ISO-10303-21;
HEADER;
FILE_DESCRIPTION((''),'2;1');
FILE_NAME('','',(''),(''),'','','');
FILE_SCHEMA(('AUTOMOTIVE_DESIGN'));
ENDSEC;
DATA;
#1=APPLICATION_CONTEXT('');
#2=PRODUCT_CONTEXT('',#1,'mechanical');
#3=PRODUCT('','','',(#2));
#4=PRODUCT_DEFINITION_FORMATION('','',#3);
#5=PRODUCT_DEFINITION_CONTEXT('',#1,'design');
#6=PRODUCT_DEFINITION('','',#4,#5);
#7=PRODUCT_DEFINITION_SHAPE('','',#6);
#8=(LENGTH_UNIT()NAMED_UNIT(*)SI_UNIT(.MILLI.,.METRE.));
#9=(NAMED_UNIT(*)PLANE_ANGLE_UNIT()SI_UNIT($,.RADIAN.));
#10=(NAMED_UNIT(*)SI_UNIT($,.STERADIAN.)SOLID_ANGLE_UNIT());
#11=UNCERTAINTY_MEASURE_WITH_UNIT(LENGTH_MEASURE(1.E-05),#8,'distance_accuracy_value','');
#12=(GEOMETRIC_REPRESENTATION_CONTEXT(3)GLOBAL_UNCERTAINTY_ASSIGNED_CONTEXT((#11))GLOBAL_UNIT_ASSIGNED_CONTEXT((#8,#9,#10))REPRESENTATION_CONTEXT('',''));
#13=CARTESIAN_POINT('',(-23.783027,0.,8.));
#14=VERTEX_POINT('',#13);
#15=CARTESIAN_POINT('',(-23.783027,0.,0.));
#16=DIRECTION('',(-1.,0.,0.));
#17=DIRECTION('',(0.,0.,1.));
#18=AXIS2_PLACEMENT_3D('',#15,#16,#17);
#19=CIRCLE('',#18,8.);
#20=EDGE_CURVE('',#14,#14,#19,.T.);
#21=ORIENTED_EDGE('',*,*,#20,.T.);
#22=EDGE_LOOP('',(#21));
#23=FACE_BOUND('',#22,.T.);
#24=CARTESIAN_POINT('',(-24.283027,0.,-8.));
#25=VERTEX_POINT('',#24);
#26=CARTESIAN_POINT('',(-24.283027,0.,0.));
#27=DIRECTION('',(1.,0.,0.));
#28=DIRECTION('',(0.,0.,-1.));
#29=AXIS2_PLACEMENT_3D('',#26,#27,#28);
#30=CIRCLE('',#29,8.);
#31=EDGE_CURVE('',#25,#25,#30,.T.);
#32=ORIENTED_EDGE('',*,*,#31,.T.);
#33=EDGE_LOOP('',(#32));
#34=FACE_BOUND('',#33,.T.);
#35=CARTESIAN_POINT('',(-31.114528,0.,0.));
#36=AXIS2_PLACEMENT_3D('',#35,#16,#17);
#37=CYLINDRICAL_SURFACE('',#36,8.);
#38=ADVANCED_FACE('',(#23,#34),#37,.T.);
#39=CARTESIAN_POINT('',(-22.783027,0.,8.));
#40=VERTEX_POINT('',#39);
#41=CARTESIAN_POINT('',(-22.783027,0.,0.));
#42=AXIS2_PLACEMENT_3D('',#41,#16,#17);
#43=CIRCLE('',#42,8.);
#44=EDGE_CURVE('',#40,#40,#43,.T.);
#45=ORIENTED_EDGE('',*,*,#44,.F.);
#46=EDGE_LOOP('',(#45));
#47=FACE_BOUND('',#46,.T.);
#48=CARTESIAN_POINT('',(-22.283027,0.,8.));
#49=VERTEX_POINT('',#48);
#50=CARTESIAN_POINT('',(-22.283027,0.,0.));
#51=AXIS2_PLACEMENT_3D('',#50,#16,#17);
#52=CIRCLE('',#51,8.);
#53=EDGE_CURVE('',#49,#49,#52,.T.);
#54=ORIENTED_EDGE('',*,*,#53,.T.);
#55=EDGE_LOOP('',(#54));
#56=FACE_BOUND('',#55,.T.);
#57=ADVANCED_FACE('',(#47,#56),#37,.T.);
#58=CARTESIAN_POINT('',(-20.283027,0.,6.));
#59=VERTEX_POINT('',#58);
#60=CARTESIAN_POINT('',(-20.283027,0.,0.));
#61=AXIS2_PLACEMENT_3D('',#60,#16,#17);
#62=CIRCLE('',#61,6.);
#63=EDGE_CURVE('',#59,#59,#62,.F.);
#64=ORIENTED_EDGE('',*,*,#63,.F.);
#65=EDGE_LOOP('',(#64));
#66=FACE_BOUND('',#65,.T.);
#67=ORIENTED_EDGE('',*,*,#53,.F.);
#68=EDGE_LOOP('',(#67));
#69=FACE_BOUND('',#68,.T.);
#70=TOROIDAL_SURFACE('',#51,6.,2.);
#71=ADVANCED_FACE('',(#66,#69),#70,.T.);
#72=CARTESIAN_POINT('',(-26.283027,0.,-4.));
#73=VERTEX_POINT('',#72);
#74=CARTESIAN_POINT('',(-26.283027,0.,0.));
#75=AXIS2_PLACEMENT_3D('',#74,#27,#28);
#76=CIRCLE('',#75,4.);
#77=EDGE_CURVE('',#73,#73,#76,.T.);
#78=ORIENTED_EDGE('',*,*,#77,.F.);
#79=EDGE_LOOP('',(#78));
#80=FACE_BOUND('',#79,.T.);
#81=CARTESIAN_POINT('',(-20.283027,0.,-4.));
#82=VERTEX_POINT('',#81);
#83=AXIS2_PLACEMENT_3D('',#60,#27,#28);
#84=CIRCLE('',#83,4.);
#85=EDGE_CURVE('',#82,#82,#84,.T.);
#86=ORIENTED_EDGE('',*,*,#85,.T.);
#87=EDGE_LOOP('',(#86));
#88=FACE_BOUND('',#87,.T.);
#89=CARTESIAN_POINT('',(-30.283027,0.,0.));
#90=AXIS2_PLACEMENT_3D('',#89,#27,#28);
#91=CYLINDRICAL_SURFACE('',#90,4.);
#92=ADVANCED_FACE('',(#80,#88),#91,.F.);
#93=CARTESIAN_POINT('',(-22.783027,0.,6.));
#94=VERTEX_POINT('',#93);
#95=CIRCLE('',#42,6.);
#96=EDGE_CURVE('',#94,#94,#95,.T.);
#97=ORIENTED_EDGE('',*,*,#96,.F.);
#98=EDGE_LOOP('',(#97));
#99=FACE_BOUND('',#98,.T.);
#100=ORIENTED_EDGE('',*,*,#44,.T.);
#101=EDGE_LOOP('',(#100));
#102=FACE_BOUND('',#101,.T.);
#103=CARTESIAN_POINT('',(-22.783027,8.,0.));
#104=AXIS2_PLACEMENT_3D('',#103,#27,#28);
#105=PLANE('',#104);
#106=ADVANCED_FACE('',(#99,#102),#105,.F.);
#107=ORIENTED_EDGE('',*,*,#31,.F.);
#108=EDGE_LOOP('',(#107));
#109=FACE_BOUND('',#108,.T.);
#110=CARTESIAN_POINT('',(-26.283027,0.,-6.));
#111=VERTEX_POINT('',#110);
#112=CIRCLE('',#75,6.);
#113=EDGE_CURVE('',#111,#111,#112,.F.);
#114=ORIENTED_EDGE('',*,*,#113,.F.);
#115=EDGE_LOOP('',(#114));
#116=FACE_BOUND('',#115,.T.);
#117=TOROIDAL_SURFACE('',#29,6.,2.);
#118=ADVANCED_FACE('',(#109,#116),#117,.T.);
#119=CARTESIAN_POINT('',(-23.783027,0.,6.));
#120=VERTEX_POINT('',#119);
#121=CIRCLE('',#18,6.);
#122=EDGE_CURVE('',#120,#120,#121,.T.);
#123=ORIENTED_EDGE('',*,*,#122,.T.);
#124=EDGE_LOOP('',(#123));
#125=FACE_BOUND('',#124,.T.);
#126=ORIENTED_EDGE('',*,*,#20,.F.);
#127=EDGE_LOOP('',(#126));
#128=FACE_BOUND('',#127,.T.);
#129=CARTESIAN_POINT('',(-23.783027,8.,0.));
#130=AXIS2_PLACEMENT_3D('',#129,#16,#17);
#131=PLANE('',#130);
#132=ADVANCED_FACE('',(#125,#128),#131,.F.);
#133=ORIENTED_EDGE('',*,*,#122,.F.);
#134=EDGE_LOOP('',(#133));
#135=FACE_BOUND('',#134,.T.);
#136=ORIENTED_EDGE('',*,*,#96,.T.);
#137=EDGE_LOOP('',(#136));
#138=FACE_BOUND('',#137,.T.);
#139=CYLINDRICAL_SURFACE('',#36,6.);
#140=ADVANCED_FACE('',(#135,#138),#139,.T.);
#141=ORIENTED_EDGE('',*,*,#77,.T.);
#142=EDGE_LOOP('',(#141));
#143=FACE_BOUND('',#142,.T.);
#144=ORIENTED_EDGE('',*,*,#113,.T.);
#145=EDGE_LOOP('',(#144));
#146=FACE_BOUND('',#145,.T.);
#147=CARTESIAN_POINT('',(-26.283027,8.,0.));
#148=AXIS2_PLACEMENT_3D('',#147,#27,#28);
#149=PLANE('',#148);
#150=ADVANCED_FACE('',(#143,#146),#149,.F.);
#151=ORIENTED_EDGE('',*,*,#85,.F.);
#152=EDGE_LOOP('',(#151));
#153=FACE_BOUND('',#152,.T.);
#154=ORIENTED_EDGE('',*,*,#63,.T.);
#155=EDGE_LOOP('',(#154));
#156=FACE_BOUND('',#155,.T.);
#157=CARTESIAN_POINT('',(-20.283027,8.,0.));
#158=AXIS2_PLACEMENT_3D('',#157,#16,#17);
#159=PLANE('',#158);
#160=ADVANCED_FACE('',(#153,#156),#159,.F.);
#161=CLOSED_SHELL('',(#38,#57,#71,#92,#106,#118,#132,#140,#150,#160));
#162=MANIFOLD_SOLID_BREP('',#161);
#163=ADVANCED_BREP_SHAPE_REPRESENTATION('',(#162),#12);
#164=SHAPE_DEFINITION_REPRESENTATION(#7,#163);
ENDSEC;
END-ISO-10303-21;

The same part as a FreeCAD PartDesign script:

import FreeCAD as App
import Part
import Sketcher
from FreeCAD import Vector
Q = App.Units.Quantity


def edges_at(feature, points):
    """Names of the edges that pass closest to the given points."""
    edges = feature.Shape.Edges
    near = lambda p: min(range(len(edges)), key=lambda i: edges[i].distToShape(Part.Vertex(*p))[0])
    return sorted({f"Edge{near(p) + 1}" for p in points})


def add_polygon(sketch, points):
    """Adds a closed chain of lines whose ends are joined by coincident constraints."""
    first, n = sketch.GeometryCount, len(points)
    for a, b in zip(points, points[1:] + points[:1]):
        sketch.addGeometry(Part.LineSegment(App.Vector(*a, 0), App.Vector(*b, 0)), False)
    for i in range(n):
        sketch.addConstraint(Sketcher.Constraint("Coincident", first + i, 2, first + (i + 1) % n, 1))

doc = App.newDocument("Part")
params = doc.addObject("Spreadsheet::Sheet", "Params")
for row, (alias, value) in enumerate([
    ("sketch1_width", "6 mm"),
    ("sketch1_width2", "1 mm"),
    ("sketch1_height", "8 mm"),
    ("sketch1_height2", "2 mm"),
    ("revolution_angle", "360 deg"),
    ("sketch2_diameter", "8 mm"),
    ("pocket1_length", "10 mm"),
    ("fillet_radius", "2 mm"),
], start=1):
    params.set(f"A{row}", alias)
    params.set(f"B{row}", "=" + value)
    params.setAlias(f"B{row}", alias)

body = doc.addObject("PartDesign::Body", "Body")

# Sketch on XY plane
sketch1 = body.newObject("Sketcher::SketchObject", "Sketch")
sketch1.AttachmentSupport = (doc.getObject("XY_Plane"), [""])
sketch1.MapMode = "FlatFace"
add_polygon(sketch1, [(-26.3, 8), (-26.3, 0), (-20.3, 0), (-20.3, 8), (-22.8, 8), (-22.8, 6), (-23.8, 6), (-23.8, 8)])  # lines 0-7
sketch1.addConstraint([
    Sketcher.Constraint("Vertical", 0),
    Sketcher.Constraint("Horizontal", 1),
    Sketcher.Constraint("Vertical", 2),
    Sketcher.Constraint("Horizontal", 3),
    Sketcher.Constraint("Vertical", 4),
    Sketcher.Constraint("Horizontal", 5),
    Sketcher.Constraint("Vertical", 6),
    Sketcher.Constraint("Horizontal", 7),
    Sketcher.Constraint("PointOnObject", 0, 2, -1),
    Sketcher.Constraint("Horizontal", 3, 2, 6, 2),
    Sketcher.Constraint("Equal", 3, 7),
    Sketcher.Constraint("DistanceX", 1, 1, 1, 2, Q("6 mm")),
    Sketcher.Constraint("DistanceX", 5, 2, 5, 1, Q("1 mm")),
    Sketcher.Constraint("DistanceY", 0, 2, 0, 1, Q("8 mm")),
    Sketcher.Constraint("DistanceY", 4, 2, 4, 1, Q("2 mm")),
    Sketcher.Constraint("DistanceX", 0, 2, -1, 1, Q("26.283027 mm")),
])
sketch1.setExpression("Constraints[19]", "Params.sketch1_width")
sketch1.setExpression("Constraints[20]", "Params.sketch1_width2")
sketch1.setExpression("Constraints[21]", "Params.sketch1_height")
sketch1.setExpression("Constraints[22]", "Params.sketch1_height2")
revolution = body.newObject("PartDesign::Revolution", "Revolution")
revolution.Profile = sketch1
revolution.ReferenceAxis = (sketch1, ["H_Axis"])
revolution.setExpression("Angle", "Params.revolution_angle")

# Sketch on YZ plane
sketch2 = body.newObject("Sketcher::SketchObject", "Sketch001")
sketch2.AttachmentSupport = (doc.getObject("YZ_Plane"), [""])
sketch2.MapMode = "FlatFace"
sketch2.AttachmentOffset = App.Placement(Vector(0, 0, -20.283027), App.Rotation())
sketch2.addGeometry(Part.Circle(Vector(0, 0, 0), Vector(0, 0, 1), 4), False)
sketch2.addConstraint([
    Sketcher.Constraint("Coincident", 0, 3, -1, 1),
    Sketcher.Constraint("Diameter", 0, Q("8 mm")),
])
sketch2.setExpression("Constraints[1]", "Params.sketch2_diameter")
pocket1 = body.newObject("PartDesign::Pocket", "Pocket")
pocket1.Profile = sketch2
pocket1.setExpression("Length", "Params.pocket1_length")
doc.recompute()

fillet = body.newObject("PartDesign::Fillet", "Fillet")
fillet.Base = (pocket1, edges_at(pocket1, [(-26.283, 0, -8), (-20.283, 0, -8)]))
fillet.setExpression("Radius", "Params.fillet_radius")

doc.recompute()
